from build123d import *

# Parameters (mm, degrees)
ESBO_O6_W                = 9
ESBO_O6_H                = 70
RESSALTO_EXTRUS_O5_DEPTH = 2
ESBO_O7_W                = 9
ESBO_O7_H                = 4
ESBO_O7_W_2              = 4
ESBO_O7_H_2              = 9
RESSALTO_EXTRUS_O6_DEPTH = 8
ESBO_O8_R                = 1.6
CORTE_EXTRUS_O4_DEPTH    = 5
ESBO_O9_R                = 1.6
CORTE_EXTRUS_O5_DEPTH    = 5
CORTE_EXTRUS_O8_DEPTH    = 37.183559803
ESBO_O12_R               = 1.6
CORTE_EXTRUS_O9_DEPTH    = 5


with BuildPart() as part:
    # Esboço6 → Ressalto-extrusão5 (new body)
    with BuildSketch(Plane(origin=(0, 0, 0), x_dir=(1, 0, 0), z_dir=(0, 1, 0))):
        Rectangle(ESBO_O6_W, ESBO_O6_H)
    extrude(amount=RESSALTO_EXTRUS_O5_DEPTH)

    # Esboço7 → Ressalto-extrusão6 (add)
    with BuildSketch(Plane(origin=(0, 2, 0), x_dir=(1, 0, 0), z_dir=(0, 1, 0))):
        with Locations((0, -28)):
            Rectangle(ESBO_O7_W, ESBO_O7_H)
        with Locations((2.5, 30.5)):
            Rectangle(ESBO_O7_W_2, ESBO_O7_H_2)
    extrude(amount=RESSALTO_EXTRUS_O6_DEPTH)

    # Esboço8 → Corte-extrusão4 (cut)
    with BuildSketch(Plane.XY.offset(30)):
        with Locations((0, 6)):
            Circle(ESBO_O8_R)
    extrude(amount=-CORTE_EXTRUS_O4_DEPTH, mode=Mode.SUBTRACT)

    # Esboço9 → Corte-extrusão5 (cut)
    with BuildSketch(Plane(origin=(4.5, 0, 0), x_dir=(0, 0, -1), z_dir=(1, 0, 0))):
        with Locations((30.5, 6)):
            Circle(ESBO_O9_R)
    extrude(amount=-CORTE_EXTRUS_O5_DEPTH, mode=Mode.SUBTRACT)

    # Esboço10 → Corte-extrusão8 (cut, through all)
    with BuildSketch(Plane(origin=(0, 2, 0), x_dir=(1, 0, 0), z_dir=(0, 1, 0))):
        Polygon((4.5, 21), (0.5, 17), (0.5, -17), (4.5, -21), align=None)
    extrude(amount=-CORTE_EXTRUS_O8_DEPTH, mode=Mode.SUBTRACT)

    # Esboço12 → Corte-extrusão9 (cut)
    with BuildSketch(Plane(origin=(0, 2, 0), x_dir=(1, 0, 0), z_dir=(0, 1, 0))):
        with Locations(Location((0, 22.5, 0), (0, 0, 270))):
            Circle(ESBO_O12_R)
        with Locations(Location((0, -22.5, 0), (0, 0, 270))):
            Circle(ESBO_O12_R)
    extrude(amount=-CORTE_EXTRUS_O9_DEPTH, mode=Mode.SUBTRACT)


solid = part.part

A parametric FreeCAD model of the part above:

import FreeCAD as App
import Part
import Sketcher

V = App.Vector


def add_polygon(sketch, points):
    """Adds a closed chain of lines whose ends are joined by coincident constraints."""
    first, n = sketch.GeometryCount, len(points)
    for a, b in zip(points, points[1:] + points[:1]):
        sketch.addGeometry(Part.LineSegment(App.Vector(*a, 0), App.Vector(*b, 0)), False)
    for i in range(n):
        sketch.addConstraint(Sketcher.Constraint("Coincident", first + i, 2, first + (i + 1) % n, 1))

doc = App.newDocument("Part")
params = doc.addObject("Spreadsheet::Sheet", "Params")
for row, (alias, value) in enumerate([
    ("sketch1_width", "9 mm"),
    ("sketch1_height", "70 mm"),
    ("pad1_length", "2 mm"),
    ("sketch2_width", "9 mm"),
    ("sketch2_width2", "4 mm"),
    ("pad2_length", "8 mm"),
    ("sketch3_diameter", "3.2 mm"),
    ("pocket1_length", "5 mm"),
    ("sketch4_diameter", "3.2 mm"),
    ("pocket2_length", "5 mm"),
    ("sketch5_height", "34 mm"),
    ("sketch5_height2", "42 mm"),
    ("sketch6_diameter", "3.2 mm"),
    ("pocket4_length", "5 mm"),
], start=1):
    params.set(f"A{row}", alias)
    params.set(f"B{row}", "=" + value)
    params.setAlias(f"B{row}", alias)

body = doc.addObject("PartDesign::Body", "Body")

# Sketch on XZ plane
sketch1 = doc.addObject("Sketcher::SketchObject", "Sketch")
body.addObject(sketch1)
sketch1.AttachmentSupport = (doc.XZ_Plane, [""])
sketch1.MapMode = "FlatFace"
add_polygon(sketch1, [(-4.5, -35), (-4.5, 35), (4.5, 35), (4.5, -35)])  # lines 0-3
sketch1.addConstraint([
    Sketcher.Constraint("Vertical", 0),
    Sketcher.Constraint("Horizontal", 1),
    Sketcher.Constraint("Vertical", 2),
    Sketcher.Constraint("Horizontal", 3),
    Sketcher.Constraint("Symmetric", 0, 2, 2, 2, -1, 1),
    Sketcher.Constraint("DistanceX", 1, 1, 1, 2, 9.0),
    Sketcher.Constraint("DistanceY", 0, 1, 0, 2, 70.0),
])
sketch1.setExpression("Constraints[9]", "Params.sketch1_width")
sketch1.setExpression("Constraints[10]", "Params.sketch1_height")
pad1 = doc.addObject("PartDesign::Pad", "Pad")
body.addObject(pad1)
pad1.Profile = sketch1
pad1.setExpression("Length", "Params.pad1_length")
pad1.Reversed = True

# Sketch on XZ plane
sketch2 = doc.addObject("Sketcher::SketchObject", "Sketch001")
body.addObject(sketch2)
sketch2.AttachmentSupport = (doc.XZ_Plane, [""])
sketch2.MapMode = "FlatFace"
sketch2.AttachmentOffset = App.Placement(V(0, 0, -2), App.Rotation())
add_polygon(sketch2, [(-4.5, 26), (-4.5, 30), (4.5, 30), (4.5, 26)])  # lines 0-3
add_polygon(sketch2, [(0.5, -35), (0.5, -26), (4.5, -26), (4.5, -35)])  # lines 4-7
sketch2.addConstraint([
    Sketcher.Constraint("Vertical", 0),
    Sketcher.Constraint("Horizontal", 1),
    Sketcher.Constraint("Vertical", 2),
    Sketcher.Constraint("Horizontal", 3),
    Sketcher.Constraint("Vertical", 4),
    Sketcher.Constraint("Horizontal", 5),
    Sketcher.Constraint("Vertical", 6),
    Sketcher.Constraint("Horizontal", 7),
    Sketcher.Constraint("Symmetric", 3, 2, 5, 2, -1, 1),
    Sketcher.Constraint("Vertical", 2, 2, 5, 2),
    Sketcher.Constraint("Equal", 7, 0),
    Sketcher.Constraint("Equal", 3, 4),
    Sketcher.Constraint("DistanceX", 1, 1, 1, 2, 9.0),
    Sketcher.Constraint("DistanceX", 5, 1, 5, 2, 4.0),
    Sketcher.Constraint("DistanceY", -1, 1, 0, 2, 30.0),
])
sketch2.setExpression("Constraints[20]", "Params.sketch2_width")
sketch2.setExpression("Constraints[21]", "Params.sketch2_width2")
pad2 = doc.addObject("PartDesign::Pad", "Pad001")
body.addObject(pad2)
pad2.Profile = sketch2
pad2.setExpression("Length", "Params.pad2_length")
pad2.Reversed = True

# Sketch on XY plane
sketch3 = doc.addObject("Sketcher::SketchObject", "Sketch002")
body.addObject(sketch3)
sketch3.AttachmentSupport = (doc.XY_Plane, [""])
sketch3.MapMode = "FlatFace"
sketch3.AttachmentOffset = App.Placement(V(0, 0, 30), App.Rotation())
sketch3.addGeometry(Part.Circle(V(0, 6, 0), V(0, 0, 1), 1.6), False)
sketch3.addConstraint([
    Sketcher.Constraint("PointOnObject", 0, 3, -2),
    Sketcher.Constraint("Diameter", 0, 3.2),
    Sketcher.Constraint("DistanceY", -1, 1, 0, 3, 6.0),
])
sketch3.setExpression("Constraints[1]", "Params.sketch3_diameter")
pocket1 = doc.addObject("PartDesign::Pocket", "Pocket")
body.addObject(pocket1)
pocket1.Profile = sketch3
pocket1.setExpression("Length", "Params.pocket1_length")

# Sketch on YZ plane
sketch4 = doc.addObject("Sketcher::SketchObject", "Sketch003")
body.addObject(sketch4)
sketch4.AttachmentSupport = (doc.YZ_Plane, [""])
sketch4.MapMode = "FlatFace"
sketch4.AttachmentOffset = App.Placement(V(0, 0, 4.5), App.Rotation())
sketch4.addGeometry(Part.Circle(V(6, -30.5, 0), V(0, 0, 1), 1.6), False)
sketch4.addConstraint([
    Sketcher.Constraint("Diameter", 0, 3.2),
    Sketcher.Constraint("DistanceX", -1, 1, 0, 3, 6.0),
    Sketcher.Constraint("DistanceY", 0, 3, -1, 1, 30.5),
])
sketch4.setExpression("Constraints[0]", "Params.sketch4_diameter")
pocket2 = doc.addObject("PartDesign::Pocket", "Pocket001")
body.addObject(pocket2)
pocket2.Profile = sketch4
pocket2.setExpression("Length", "Params.pocket2_length")

# Sketch on XZ plane
sketch5 = doc.addObject("Sketcher::SketchObject", "Sketch004")
body.addObject(sketch5)
sketch5.AttachmentSupport = (doc.XZ_Plane, [""])
sketch5.MapMode = "FlatFace"
sketch5.AttachmentOffset = App.Placement(V(0, 0, -2), App.Rotation())
add_polygon(sketch5, [(4.5, -21), (0.5, -17), (0.5, 17), (4.5, 21)])  # lines 0-3
sketch5.addConstraint([
    Sketcher.Constraint("Vertical", 1),
    Sketcher.Constraint("Vertical", 3),
    Sketcher.Constraint("Perpendicular", 0, 2),
    Sketcher.Constraint("Equal", 0, 2),
    Sketcher.Constraint("DistanceY", 1, 1, 1, 2, 34.0),
    Sketcher.Constraint("DistanceY", 3, 2, 3, 1, 42.0),
    Sketcher.Constraint("DistanceY", 0, 2, -1, 1, 17.0),
    Sketcher.Constraint("DistanceX", -1, 1, 0, 2, 0.5),
])
sketch5.setExpression("Constraints[8]", "Params.sketch5_height")
sketch5.setExpression("Constraints[9]", "Params.sketch5_height2")
pocket3 = doc.addObject("PartDesign::Pocket", "Pocket002")
body.addObject(pocket3)
pocket3.Profile = sketch5
pocket3.Type = "ThroughAll"
pocket3.Reversed = True

# Sketch on XZ plane
sketch6 = doc.addObject("Sketcher::SketchObject", "Sketch005")
body.addObject(sketch6)
sketch6.AttachmentSupport = (doc.XZ_Plane, [""])
sketch6.MapMode = "FlatFace"
sketch6.AttachmentOffset = App.Placement(V(0, 0, -2), App.Rotation())
sketch6.addGeometry([
    Part.Circle(V(0, -22.5, 0), V(0, 0, 1), 1.6),
    Part.Circle(V(0, 22.5, 0), V(0, 0, 1), 1.6),
], False)
sketch6.addConstraint([
    Sketcher.Constraint("Equal", 0, 1),
    Sketcher.Constraint("Symmetric", 0, 3, 1, 3, -1, 1),
    Sketcher.Constraint("PointOnObject", 0, 3, -2),
    Sketcher.Constraint("Diameter", 0, 3.2),
    Sketcher.Constraint("DistanceY", 0, 3, 1, 3, 45.0),
])
sketch6.setExpression("Constraints[3]", "Params.sketch6_diameter")
pocket4 = doc.addObject("PartDesign::Pocket", "Pocket003")
body.addObject(pocket4)
pocket4.Profile = sketch6
pocket4.setExpression("Length", "Params.pocket4_length")
pocket4.Reversed = True

doc.recompute()
